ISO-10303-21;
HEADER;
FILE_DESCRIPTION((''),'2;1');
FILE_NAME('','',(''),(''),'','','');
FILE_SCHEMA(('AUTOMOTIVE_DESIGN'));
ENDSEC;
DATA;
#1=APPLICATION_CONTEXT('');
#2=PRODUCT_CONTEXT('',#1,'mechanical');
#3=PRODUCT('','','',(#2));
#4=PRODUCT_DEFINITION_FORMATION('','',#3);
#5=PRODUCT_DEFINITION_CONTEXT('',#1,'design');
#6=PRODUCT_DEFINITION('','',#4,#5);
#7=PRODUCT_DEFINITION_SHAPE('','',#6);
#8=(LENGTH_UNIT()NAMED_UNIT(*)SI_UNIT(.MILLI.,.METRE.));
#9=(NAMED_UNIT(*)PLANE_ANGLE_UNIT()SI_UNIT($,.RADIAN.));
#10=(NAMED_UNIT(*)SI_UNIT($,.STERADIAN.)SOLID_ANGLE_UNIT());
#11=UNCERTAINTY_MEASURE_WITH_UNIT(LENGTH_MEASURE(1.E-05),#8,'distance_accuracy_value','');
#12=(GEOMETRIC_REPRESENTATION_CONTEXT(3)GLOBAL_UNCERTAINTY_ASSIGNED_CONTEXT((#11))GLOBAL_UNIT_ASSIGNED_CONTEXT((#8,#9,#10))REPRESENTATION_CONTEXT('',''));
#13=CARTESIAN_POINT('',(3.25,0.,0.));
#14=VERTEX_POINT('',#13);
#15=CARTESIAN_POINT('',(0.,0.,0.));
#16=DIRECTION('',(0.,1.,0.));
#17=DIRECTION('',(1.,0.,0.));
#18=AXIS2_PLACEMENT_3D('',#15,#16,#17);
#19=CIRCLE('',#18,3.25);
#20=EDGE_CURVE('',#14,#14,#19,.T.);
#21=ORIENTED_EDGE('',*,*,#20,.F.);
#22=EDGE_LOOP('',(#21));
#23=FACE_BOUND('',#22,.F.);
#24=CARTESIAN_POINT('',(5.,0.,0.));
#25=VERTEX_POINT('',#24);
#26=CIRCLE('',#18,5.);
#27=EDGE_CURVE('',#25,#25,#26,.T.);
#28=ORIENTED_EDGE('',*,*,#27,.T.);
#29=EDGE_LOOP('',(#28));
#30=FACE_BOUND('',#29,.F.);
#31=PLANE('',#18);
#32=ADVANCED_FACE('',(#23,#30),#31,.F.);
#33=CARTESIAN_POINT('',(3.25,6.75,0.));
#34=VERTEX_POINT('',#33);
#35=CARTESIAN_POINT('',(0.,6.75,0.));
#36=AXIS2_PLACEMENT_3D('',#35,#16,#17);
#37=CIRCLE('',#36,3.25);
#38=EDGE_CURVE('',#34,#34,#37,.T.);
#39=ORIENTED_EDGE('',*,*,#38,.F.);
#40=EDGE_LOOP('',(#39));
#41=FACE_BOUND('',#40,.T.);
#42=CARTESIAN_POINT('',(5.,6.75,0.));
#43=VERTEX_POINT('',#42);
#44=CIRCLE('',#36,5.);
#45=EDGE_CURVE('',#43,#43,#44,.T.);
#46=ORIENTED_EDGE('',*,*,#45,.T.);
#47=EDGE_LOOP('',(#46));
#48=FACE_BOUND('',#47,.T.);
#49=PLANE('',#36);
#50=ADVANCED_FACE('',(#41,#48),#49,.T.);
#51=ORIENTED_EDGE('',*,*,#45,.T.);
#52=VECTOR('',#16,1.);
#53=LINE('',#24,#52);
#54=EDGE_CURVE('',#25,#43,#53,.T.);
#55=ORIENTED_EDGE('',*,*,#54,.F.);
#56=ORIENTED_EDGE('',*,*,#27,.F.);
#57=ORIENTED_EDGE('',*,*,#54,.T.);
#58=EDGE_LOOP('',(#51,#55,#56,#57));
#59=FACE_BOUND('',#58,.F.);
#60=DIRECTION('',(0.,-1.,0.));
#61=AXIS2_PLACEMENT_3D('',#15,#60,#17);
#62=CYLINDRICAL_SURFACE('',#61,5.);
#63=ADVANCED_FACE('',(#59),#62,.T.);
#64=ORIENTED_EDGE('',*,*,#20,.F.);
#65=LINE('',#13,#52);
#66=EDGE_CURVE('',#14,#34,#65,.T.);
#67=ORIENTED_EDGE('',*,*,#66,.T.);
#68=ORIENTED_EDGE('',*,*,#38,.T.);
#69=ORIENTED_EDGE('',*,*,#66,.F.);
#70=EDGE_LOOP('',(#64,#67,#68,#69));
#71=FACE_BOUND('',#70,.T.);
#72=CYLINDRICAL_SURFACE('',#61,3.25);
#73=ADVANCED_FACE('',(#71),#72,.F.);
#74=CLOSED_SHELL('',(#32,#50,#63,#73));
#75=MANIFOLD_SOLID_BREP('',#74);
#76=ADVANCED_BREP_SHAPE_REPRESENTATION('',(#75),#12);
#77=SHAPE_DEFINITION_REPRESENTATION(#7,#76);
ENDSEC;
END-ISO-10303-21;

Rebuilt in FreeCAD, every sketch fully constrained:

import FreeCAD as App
import Part
import Sketcher
Q = App.Units.Quantity

doc = App.newDocument("Part")
body = doc.addObject("PartDesign::Body", "Body")

sketch1 = body.newObject("Sketcher::SketchObject", "Sketch")
sketch1.AttachmentSupport = (doc.getObject("XZ_Plane"), [""])
sketch1.MapMode = "FlatFace"
sketch1.addGeometry([
    Part.Circle(App.Vector(0, 0, 0), App.Vector(0, 0, 1), 5),
    Part.Circle(App.Vector(0, 0, 0), App.Vector(0, 0, 1), 3.2),
], False)
sketch1.addConstraint([
    Sketcher.Constraint("Coincident", 0, 3, -1, 1),
    Sketcher.Constraint("Coincident", 1, 3, -1, 1),
    Sketcher.Constraint("Diameter", 1, Q("6.5 mm")),
    Sketcher.Constraint("Diameter", 0, Q("10 mm")),
])
pad1 = body.newObject("PartDesign::Pad", "Pad")
pad1.Profile = sketch1
pad1.Length = 6.75
pad1.Reversed = True

doc.recompute()
